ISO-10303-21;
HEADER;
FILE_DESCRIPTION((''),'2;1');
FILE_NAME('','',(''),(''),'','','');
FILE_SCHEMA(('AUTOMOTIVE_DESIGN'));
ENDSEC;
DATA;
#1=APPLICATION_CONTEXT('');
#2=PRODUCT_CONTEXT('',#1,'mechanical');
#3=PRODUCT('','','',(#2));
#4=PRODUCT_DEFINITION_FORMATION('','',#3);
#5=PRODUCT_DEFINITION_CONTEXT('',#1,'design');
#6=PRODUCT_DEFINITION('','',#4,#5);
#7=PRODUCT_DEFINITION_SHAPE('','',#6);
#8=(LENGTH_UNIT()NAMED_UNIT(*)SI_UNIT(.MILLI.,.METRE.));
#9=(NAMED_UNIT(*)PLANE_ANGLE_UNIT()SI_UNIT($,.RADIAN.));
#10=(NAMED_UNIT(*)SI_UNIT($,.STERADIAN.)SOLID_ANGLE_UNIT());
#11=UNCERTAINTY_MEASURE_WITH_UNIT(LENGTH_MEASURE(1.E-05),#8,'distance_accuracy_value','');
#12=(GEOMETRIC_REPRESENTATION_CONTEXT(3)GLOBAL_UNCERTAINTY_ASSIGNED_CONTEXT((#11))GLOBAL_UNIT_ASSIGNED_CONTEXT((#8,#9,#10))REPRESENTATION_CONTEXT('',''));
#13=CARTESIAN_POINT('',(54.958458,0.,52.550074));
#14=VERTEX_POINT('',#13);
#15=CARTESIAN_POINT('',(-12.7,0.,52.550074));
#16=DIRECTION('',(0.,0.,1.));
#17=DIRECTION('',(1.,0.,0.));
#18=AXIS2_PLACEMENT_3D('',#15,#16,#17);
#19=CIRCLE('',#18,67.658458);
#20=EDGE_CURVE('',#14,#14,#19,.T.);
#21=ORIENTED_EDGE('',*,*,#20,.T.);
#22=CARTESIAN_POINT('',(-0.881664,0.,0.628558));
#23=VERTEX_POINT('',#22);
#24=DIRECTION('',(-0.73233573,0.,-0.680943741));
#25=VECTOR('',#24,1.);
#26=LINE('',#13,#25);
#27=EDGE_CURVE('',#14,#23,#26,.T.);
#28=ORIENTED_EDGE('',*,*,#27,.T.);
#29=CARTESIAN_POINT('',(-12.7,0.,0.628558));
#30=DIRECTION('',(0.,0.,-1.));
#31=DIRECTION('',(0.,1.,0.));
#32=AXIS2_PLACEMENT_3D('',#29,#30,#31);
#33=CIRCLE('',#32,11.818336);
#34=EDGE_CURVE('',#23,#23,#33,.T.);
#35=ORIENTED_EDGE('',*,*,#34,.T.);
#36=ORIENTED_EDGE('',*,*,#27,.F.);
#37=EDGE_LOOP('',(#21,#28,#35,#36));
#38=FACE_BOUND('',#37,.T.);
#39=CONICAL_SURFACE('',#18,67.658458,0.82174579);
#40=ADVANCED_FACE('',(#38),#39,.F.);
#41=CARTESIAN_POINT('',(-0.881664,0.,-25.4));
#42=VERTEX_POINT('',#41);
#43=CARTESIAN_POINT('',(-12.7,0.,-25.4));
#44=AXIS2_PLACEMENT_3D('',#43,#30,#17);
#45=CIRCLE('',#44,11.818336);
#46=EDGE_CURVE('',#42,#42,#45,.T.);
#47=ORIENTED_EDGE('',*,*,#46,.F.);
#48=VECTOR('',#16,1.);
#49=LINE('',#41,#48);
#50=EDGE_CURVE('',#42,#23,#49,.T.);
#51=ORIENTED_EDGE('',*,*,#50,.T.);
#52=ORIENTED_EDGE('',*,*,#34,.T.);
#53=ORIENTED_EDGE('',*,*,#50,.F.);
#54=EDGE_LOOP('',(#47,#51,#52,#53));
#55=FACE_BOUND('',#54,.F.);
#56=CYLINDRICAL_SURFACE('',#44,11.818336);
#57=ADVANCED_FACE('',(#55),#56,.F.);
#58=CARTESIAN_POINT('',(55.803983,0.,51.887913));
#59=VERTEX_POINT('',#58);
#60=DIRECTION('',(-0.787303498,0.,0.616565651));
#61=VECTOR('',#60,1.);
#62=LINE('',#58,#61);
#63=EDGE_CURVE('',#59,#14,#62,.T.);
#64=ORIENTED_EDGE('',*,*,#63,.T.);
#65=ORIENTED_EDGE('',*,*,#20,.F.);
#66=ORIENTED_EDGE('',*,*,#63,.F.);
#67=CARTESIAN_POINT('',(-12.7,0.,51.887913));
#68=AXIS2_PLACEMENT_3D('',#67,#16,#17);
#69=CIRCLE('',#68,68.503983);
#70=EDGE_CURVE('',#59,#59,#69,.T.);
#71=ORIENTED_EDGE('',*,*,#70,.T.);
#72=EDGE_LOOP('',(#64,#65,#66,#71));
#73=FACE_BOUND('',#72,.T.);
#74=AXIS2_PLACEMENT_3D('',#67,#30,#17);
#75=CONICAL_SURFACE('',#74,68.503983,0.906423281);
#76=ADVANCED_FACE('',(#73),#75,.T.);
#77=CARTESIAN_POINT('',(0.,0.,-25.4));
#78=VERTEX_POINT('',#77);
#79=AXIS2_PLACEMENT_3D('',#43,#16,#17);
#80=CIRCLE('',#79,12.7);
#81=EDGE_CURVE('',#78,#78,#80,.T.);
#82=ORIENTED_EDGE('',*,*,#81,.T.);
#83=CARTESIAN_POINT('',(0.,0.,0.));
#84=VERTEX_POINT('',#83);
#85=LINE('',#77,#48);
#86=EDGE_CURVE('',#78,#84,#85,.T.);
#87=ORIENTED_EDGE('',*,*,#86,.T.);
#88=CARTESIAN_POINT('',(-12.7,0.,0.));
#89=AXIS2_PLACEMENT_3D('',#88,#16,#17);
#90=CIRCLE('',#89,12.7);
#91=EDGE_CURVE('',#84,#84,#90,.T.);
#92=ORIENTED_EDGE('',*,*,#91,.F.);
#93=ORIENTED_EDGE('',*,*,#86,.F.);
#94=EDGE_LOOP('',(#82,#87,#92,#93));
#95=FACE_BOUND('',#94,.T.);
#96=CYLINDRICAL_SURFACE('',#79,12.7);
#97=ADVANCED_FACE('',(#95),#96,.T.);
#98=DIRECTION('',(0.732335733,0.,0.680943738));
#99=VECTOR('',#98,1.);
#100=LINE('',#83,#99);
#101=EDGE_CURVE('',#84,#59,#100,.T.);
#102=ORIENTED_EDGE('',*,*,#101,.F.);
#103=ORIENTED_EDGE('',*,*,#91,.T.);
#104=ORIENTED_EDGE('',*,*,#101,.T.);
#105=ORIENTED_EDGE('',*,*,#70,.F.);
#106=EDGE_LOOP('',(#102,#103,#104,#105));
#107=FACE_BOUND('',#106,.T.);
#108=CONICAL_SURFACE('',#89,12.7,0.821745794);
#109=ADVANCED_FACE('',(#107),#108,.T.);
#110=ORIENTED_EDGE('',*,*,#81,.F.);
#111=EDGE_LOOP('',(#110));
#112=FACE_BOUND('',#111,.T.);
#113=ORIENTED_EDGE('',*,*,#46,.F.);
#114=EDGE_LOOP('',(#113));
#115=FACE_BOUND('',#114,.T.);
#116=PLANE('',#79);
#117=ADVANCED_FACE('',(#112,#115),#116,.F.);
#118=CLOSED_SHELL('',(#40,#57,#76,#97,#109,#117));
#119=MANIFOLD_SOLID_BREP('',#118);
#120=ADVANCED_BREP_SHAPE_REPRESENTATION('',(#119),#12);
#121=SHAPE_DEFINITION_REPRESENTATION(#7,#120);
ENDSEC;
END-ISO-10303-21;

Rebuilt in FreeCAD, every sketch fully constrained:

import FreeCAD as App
import Part
import Sketcher

V = App.Vector
Q = App.Units.Quantity


def add_polygon(sketch, points):
    """Adds a closed chain of lines whose ends are joined by coincident constraints."""
    first, n = sketch.GeometryCount, len(points)
    for a, b in zip(points, points[1:] + points[:1]):
        sketch.addGeometry(Part.LineSegment(App.Vector(*a, 0), App.Vector(*b, 0)), False)
    for i in range(n):
        sketch.addConstraint(Sketcher.Constraint("Coincident", first + i, 2, first + (i + 1) % n, 1))

doc = App.newDocument("Part")
body = doc.addObject("PartDesign::Body", "Body")

# Sketch on XZ plane
sketch1 = body.newObject("Sketcher::SketchObject", "Sketch")
sketch1.AttachmentSupport = (doc.getObject("XZ_Plane"), [""])
sketch1.MapMode = "FlatFace"
add_polygon(sketch1, [(0, -25.4), (0, 0), (55.8, 51.9), (55, 52.6), (-1.6, 0), (-12.7, 0), (-12.7, -25.4)])  # lines 0-6
sketch1.addGeometry(Part.LineSegment(V(-12.7, -25.4, 0), V(-12.7, 52.6, 0)), True)  # axis
sketch1.addConstraint(Sketcher.Constraint("Vertical", 0))
sketch1.addConstraint(Sketcher.Constraint("Horizontal", 4))
sketch1.addConstraint(Sketcher.Constraint("Vertical", 5))
sketch1.addConstraint(Sketcher.Constraint("Horizontal", 6))
sketch1.addConstraint(Sketcher.Constraint("Vertical", 7))
sketch1.addConstraint(Sketcher.Constraint("Coincident", 0, 2, -1, 1))
sketch1.addConstraint(Sketcher.Constraint("Coincident", 7, 1, 5, 2))
sketch1.addConstraint(Sketcher.Constraint("PointOnObject", 3, 2, -1))
sketch1.addConstraint(Sketcher.Constraint("Parallel", 1, 3))
sketch1.addConstraint(Sketcher.Constraint("Horizontal", 2, 2, 7, 2))
sketch1.addConstraint(Sketcher.Constraint("DistanceY", 0, 1, 0, 2, Q("1 in")))
sketch1.addConstraint(Sketcher.Constraint("Distance", 1, Q("3 in")))
sketch1.addConstraint(Sketcher.Constraint("DistanceX", 6, 1, 6, 2, Q("0.5 in")))
sketch1.addConstraint(Sketcher.Constraint("DistanceX", 4, 2, 4, 1, Q("11.14234 mm")))
sketch1.addConstraint(Sketcher.Constraint("Distance", 2, Q("1.073951 mm")))
sketch1.addConstraint(Sketcher.Constraint("DistanceY", 7, 1, 7, 2, Q("77.950074 mm")))
revolution = body.newObject("PartDesign::Revolution", "Revolution")
revolution.Profile = sketch1
revolution.ReferenceAxis = (sketch1, ["Axis0"])
revolution.Angle = 360

# Sketch on XY plane
sketch2 = body.newObject("Sketcher::SketchObject", "Sketch001")
sketch2.AttachmentSupport = (doc.getObject("XY_Plane"), [""])
sketch2.MapMode = "FlatFace"
sketch2.AttachmentOffset = App.Placement(V(0, 0, -1 * 25.4), App.Rotation())
sketch2.addGeometry(Part.Circle(V(-13, 0, 0), V(0, 0, 1), 12), False)
sketch2.addConstraint(Sketcher.Constraint("PointOnObject", 0, 3, -1))
sketch2.addConstraint(Sketcher.Constraint("DistanceX", 0, 3, -1, 1, Q("0.5 in")))
sketch2.addConstraint(Sketcher.Constraint("Diameter", 0, Q("23.636672 mm")))
pocket1 = body.newObject("PartDesign::Pocket", "Pocket")
pocket1.Profile = sketch2
pocket1.Length = Q("2 in")
pocket1.Reversed = True

doc.recompute()
